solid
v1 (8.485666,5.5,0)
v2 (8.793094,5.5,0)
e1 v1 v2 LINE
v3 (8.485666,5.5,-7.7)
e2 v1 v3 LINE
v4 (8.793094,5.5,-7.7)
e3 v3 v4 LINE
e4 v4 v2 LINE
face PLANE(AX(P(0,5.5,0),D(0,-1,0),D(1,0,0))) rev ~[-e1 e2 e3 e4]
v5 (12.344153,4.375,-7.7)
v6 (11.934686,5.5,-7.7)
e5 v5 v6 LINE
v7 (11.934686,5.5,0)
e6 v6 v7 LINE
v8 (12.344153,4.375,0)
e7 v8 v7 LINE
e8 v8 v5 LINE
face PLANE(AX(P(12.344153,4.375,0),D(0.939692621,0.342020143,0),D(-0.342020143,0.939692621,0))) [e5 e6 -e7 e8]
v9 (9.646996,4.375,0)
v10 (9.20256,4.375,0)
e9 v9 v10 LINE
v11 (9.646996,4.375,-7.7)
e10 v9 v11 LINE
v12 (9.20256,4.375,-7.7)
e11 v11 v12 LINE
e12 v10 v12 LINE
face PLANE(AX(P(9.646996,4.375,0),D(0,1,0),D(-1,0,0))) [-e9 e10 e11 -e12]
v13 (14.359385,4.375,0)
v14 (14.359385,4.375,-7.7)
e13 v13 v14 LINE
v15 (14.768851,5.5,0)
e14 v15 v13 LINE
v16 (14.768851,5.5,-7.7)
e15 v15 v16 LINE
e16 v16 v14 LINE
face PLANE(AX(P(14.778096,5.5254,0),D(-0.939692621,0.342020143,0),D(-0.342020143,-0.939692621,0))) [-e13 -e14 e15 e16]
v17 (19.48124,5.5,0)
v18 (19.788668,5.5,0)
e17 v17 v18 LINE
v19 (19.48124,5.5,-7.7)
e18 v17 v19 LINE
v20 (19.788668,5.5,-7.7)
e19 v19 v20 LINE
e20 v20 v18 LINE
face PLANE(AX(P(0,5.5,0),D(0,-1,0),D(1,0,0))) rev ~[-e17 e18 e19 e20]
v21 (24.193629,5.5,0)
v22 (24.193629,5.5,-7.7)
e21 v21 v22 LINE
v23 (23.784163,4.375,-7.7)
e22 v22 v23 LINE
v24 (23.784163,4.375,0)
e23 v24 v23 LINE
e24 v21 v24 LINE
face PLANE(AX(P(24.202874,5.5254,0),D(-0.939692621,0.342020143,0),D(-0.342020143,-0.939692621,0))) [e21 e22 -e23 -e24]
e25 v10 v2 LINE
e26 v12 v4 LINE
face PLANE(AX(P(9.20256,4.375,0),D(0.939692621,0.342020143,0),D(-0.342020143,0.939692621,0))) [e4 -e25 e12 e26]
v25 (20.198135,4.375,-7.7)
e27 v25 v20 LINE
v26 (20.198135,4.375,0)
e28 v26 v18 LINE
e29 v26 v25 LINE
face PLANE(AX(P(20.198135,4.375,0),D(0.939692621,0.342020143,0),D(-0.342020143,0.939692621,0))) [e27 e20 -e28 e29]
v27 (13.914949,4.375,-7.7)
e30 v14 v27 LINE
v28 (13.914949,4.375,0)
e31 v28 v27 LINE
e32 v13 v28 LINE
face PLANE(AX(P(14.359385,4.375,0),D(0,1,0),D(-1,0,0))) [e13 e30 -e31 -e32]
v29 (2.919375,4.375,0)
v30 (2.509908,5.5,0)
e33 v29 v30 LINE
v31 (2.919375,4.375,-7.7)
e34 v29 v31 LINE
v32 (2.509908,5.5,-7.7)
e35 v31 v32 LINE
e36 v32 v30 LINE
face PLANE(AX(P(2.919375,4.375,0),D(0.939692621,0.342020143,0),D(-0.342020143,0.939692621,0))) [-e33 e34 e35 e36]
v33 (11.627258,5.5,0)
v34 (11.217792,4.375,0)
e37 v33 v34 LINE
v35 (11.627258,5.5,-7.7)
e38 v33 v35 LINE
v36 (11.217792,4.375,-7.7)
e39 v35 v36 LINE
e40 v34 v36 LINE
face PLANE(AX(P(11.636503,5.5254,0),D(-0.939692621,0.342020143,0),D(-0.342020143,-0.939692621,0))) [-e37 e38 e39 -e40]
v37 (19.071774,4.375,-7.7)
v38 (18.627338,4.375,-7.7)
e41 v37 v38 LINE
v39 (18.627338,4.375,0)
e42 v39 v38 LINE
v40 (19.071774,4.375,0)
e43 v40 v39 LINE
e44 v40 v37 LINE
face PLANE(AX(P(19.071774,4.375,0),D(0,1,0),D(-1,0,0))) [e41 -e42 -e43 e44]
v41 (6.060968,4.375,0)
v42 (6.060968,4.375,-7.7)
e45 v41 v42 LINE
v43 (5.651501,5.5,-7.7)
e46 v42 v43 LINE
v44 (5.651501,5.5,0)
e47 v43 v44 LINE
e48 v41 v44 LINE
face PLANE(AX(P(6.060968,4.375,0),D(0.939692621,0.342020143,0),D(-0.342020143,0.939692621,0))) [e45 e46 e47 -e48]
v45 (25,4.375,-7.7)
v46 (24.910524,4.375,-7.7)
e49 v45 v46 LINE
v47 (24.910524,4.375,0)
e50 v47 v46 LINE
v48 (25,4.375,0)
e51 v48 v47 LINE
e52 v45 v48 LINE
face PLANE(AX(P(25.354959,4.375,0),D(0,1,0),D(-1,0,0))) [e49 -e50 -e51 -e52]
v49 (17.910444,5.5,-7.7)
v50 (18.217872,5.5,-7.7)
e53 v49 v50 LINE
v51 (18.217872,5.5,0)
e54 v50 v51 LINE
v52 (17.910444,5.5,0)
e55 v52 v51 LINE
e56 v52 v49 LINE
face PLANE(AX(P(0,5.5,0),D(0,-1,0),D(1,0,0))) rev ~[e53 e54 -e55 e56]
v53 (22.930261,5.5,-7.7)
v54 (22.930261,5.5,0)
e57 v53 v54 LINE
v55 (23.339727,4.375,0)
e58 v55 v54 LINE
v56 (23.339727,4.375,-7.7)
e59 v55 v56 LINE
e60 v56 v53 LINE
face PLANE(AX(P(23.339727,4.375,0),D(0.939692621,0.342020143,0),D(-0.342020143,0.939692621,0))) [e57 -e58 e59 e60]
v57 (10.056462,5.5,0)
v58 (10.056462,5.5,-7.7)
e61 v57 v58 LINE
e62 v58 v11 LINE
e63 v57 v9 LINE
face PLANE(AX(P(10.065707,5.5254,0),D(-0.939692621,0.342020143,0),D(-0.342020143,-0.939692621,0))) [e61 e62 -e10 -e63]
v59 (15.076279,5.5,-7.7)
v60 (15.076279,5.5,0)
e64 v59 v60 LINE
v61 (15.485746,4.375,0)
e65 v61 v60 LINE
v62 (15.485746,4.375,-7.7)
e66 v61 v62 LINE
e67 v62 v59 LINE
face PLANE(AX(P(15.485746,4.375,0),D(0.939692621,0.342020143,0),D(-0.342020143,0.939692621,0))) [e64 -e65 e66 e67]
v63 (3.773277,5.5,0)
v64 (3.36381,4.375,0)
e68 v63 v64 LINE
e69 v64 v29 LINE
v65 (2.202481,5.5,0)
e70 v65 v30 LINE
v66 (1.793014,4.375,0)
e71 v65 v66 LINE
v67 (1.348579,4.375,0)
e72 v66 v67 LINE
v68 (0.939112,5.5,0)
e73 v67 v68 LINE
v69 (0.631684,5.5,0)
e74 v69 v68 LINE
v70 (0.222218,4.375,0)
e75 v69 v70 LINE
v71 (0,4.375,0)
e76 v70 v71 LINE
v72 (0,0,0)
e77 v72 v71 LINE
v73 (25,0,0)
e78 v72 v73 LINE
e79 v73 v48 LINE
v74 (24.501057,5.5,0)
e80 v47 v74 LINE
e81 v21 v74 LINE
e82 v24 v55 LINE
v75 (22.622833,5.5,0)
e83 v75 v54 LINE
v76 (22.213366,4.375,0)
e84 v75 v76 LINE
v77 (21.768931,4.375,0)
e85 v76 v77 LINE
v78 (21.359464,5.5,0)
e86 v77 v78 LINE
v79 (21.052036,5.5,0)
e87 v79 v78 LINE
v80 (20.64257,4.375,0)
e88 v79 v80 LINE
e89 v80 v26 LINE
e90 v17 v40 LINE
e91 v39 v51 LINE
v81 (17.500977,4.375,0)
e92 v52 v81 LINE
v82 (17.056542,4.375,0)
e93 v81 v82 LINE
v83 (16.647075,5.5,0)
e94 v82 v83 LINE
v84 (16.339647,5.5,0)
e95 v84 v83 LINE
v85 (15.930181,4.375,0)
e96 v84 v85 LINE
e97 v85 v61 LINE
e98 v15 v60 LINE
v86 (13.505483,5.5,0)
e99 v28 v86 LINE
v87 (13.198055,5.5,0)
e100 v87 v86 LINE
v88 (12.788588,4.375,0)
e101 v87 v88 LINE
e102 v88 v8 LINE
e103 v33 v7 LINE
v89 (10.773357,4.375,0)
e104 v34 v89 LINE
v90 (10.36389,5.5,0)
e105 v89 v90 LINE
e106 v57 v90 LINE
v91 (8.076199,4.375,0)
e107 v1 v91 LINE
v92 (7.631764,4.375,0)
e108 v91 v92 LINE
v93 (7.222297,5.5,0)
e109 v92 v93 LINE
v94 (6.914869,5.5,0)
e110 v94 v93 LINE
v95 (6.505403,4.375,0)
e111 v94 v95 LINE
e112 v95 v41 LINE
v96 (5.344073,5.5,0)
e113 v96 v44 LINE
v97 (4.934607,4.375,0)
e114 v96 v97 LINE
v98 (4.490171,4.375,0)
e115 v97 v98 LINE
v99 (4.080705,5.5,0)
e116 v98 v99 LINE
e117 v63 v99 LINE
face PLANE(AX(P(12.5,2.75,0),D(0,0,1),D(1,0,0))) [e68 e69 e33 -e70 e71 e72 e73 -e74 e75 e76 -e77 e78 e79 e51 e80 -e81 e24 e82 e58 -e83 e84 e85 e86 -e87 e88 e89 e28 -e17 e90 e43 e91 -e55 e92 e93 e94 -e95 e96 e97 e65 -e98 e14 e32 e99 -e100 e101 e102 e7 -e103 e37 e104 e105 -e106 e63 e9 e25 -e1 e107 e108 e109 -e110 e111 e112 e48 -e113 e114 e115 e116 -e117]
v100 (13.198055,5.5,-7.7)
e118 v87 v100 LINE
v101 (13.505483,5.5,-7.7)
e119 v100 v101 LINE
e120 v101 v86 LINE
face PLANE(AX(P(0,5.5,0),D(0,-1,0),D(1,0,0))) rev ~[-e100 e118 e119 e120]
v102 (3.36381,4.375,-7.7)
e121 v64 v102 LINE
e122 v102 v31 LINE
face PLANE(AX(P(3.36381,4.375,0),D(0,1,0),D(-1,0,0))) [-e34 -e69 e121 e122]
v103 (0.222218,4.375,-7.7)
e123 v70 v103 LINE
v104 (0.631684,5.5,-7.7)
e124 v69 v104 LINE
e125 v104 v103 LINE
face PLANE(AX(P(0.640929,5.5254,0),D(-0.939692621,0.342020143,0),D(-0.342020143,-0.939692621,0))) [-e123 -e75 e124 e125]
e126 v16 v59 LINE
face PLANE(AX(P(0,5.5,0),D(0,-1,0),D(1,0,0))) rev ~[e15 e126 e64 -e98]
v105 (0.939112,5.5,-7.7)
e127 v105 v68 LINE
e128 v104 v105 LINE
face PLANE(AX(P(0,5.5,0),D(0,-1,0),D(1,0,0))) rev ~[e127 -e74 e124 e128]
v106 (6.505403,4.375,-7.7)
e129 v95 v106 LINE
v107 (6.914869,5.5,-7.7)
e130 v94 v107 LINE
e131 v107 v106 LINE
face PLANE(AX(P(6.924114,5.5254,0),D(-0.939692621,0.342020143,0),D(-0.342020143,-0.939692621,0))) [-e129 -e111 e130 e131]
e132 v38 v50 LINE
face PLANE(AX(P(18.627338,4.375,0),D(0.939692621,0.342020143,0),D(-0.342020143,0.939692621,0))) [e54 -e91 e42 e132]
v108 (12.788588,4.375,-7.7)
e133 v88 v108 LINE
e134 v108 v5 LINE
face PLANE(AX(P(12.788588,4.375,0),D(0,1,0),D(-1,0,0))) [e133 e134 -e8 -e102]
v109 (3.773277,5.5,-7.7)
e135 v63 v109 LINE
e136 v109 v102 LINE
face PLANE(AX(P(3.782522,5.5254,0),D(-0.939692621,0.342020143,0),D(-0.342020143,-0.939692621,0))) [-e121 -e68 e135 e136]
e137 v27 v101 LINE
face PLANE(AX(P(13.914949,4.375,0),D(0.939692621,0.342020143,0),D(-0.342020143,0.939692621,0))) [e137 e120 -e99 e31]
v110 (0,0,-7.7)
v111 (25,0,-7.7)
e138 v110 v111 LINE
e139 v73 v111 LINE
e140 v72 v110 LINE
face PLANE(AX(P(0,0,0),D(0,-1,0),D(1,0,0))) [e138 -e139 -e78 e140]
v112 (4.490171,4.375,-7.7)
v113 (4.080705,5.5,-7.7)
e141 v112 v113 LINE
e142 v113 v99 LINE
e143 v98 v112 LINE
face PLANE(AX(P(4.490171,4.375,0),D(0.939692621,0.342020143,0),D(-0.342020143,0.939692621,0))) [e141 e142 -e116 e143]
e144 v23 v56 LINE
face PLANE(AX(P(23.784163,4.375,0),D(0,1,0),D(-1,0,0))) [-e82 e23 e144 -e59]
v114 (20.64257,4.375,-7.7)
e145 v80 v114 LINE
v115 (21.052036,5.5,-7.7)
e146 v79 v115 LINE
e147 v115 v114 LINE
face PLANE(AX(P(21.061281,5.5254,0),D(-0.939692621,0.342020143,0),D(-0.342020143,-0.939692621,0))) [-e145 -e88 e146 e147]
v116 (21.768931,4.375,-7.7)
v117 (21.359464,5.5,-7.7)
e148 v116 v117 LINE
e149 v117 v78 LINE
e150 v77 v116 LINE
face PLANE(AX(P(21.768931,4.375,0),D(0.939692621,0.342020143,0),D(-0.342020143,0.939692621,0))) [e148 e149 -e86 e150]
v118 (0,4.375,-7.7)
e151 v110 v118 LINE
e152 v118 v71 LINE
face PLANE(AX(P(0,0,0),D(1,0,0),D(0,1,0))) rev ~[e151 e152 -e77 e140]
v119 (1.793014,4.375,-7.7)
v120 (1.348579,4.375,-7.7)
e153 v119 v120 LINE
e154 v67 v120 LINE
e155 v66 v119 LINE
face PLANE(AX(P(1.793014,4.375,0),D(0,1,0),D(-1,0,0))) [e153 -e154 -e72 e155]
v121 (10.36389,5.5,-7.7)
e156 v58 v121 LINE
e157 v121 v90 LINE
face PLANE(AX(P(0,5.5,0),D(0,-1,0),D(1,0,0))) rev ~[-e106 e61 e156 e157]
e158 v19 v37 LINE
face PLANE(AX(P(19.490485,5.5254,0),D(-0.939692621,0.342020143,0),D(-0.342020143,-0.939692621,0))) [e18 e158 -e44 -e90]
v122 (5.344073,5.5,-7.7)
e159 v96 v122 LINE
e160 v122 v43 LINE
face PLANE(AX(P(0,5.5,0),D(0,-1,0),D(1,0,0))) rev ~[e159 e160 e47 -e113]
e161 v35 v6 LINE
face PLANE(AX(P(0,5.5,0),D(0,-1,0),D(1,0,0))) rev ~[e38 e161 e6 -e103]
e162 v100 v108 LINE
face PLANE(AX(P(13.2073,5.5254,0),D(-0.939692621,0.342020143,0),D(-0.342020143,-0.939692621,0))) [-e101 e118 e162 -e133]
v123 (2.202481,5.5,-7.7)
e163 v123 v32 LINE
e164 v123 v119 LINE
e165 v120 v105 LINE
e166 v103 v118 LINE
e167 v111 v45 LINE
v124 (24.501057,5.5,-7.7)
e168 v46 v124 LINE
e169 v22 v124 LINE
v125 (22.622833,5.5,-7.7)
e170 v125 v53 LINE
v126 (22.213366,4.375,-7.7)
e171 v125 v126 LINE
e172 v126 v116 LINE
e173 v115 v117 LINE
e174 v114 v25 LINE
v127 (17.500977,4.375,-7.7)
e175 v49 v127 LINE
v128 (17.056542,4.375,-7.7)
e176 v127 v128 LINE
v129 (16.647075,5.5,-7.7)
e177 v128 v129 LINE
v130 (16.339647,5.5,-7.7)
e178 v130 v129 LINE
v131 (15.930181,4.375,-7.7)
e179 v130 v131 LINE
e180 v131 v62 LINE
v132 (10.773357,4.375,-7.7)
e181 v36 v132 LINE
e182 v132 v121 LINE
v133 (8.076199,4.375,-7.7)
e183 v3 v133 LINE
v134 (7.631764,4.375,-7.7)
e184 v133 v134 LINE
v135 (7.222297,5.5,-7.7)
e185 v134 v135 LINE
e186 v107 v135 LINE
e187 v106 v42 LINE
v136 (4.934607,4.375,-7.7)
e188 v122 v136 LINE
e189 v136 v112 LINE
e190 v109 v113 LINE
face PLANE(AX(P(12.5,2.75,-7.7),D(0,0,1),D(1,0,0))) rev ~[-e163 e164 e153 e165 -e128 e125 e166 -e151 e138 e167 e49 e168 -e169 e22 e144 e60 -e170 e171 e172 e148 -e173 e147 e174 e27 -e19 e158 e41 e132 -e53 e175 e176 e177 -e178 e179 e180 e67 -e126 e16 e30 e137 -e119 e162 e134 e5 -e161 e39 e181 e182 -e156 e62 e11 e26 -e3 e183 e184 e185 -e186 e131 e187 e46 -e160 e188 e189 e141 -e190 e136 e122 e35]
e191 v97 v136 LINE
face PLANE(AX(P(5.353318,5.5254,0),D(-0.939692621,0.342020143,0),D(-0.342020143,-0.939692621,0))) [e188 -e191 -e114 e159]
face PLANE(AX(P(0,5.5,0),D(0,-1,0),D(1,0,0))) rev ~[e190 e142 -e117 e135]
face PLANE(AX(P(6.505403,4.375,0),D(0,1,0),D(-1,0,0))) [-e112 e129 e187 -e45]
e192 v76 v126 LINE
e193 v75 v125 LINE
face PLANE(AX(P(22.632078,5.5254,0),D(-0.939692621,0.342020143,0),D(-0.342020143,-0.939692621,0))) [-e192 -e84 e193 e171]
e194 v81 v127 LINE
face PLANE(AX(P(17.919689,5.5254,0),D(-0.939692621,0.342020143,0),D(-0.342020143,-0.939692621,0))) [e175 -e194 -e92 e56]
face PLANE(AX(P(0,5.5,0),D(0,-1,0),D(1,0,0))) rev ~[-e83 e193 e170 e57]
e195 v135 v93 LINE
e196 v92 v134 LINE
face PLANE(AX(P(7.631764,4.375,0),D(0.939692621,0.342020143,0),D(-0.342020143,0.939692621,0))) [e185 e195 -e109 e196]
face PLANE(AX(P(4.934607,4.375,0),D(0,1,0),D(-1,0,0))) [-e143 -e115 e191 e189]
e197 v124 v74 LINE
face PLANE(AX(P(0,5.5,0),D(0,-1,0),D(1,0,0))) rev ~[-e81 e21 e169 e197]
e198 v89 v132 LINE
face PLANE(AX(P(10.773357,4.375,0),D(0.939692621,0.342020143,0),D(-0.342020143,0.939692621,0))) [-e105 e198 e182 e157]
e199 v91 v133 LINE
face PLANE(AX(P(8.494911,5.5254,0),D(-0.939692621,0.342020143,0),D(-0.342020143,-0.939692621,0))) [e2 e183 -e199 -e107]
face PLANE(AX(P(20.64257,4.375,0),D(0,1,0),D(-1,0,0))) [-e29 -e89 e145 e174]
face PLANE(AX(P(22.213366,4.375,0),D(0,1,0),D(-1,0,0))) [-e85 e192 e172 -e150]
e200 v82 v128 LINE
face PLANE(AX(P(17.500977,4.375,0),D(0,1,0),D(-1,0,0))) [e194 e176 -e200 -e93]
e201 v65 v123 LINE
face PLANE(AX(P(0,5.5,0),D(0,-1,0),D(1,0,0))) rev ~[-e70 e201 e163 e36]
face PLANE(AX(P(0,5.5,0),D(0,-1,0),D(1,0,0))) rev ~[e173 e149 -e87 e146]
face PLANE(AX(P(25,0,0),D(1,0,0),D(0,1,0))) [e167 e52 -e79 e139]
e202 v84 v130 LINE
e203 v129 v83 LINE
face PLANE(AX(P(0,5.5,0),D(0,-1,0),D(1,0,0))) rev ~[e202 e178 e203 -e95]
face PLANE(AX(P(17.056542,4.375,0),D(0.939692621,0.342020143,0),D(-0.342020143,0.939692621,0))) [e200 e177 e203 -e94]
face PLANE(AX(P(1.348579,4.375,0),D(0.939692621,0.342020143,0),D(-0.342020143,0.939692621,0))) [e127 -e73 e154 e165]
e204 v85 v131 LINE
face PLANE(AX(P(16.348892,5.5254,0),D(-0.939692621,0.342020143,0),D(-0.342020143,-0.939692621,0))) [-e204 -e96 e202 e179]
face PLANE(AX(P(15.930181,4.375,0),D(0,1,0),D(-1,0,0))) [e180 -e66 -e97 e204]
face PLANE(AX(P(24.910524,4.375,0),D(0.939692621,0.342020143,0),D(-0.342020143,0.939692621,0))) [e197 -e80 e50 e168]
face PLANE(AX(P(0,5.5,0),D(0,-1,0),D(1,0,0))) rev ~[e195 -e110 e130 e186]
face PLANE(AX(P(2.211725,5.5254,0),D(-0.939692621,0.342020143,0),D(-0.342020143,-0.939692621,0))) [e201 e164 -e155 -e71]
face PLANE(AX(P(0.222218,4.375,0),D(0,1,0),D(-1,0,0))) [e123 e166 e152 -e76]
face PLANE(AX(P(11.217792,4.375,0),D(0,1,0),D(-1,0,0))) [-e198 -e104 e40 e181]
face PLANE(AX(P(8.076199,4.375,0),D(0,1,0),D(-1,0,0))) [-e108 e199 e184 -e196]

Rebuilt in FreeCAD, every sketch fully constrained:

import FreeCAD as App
import Part
import Sketcher
Q = App.Units.Quantity

doc = App.newDocument("Part")
params = doc.addObject("Spreadsheet::Sheet", "Params")
for row, (alias, value) in enumerate([
    ("sketch1_width", "25 mm"),
    ("sketch1_height", "5.5 mm"),
    ("pad1_length", "7.7 mm"),
    ("linearpattern_pitch", "1.570796 mm"),
], start=1):
    params.set(f"A{row}", alias)
    params.set(f"B{row}", "=" + value)
    params.setAlias(f"B{row}", alias)

body = doc.addObject("PartDesign::Body", "Body")

# Sketch on XY plane
sketch1 = doc.addObject("Sketcher::SketchObject", "Sketch")
body.addObject(sketch1)
sketch1.AttachmentSupport = (doc.XY_Plane, [""])
sketch1.MapMode = "FlatFace"
sketch1.addGeometry([
    Part.LineSegment(App.Vector(0, 6, 0), App.Vector(0, 0, 0)),
    Part.LineSegment(App.Vector(0, 0, 0), App.Vector(25, 0, 0)),
    Part.LineSegment(App.Vector(25, 0, 0), App.Vector(25, 6, 0)),
    Part.LineSegment(App.Vector(25, 6, 0), App.Vector(0, 6, 0)),
], False)
sketch1.addConstraint([
    Sketcher.Constraint("Coincident", 0, 2, 1, 1),
    Sketcher.Constraint("Coincident", 1, 2, 2, 1),
    Sketcher.Constraint("Coincident", 2, 2, 3, 1),
    Sketcher.Constraint("Coincident", 3, 2, 0, 1),
    Sketcher.Constraint("Vertical", 0),
    Sketcher.Constraint("Horizontal", 1),
    Sketcher.Constraint("Vertical", 2),
    Sketcher.Constraint("Horizontal", 3),
    Sketcher.Constraint("Coincident", 0, 2, -1, 1),
    Sketcher.Constraint("DistanceX", 1, 1, 1, 2, Q("25 mm")),
    Sketcher.Constraint("DistanceY", 0, 2, 0, 1, Q("5.5 mm")),
])
sketch1.setExpression("Constraints[9]", "Params.sketch1_width")
sketch1.setExpression("Constraints[10]", "Params.sketch1_height")
pad1 = doc.addObject("PartDesign::Pad", "Pad")
body.addObject(pad1)
pad1.Profile = sketch1
pad1.setExpression("Length", "Params.pad1_length")
pad1.Reversed = True

# Sketch on XY plane
sketch2 = doc.addObject("Sketcher::SketchObject", "Sketch001")
body.addObject(sketch2)
sketch2.AttachmentSupport = (doc.XY_Plane, [""])
sketch2.MapMode = "FlatFace"
sketch2.addGeometry([
    Part.LineSegment(App.Vector(-0.22, 4.38, 0), App.Vector(0.22, 4.38, 0)),
    Part.LineSegment(App.Vector(0.22, 4.38, 0), App.Vector(0.64, 5.53, 0)),
    Part.LineSegment(App.Vector(0.64, 5.53, 0), App.Vector(-0.64, 5.53, 0)),
    Part.LineSegment(App.Vector(-0.64, 5.53, 0), App.Vector(-0.22, 4.38, 0)),
], False)
sketch2.addConstraint([
    Sketcher.Constraint("Coincident", 0, 2, 1, 1),
    Sketcher.Constraint("Coincident", 1, 2, 2, 1),
    Sketcher.Constraint("Coincident", 2, 2, 3, 1),
    Sketcher.Constraint("Coincident", 3, 2, 0, 1),
    Sketcher.Constraint("Horizontal", 0),
    Sketcher.Constraint("Horizontal", 2),
    Sketcher.Constraint("Equal", 1, 3),
    Sketcher.Constraint("Angle", 1, Q("70 deg")),
    Sketcher.Constraint("DistanceY", -1, 1, 0, 2, Q("4.375 mm")),
    Sketcher.Constraint("DistanceX", 2, 2, 2, 1, Q("1.281858 mm")),
    Sketcher.Constraint("DistanceY", -1, 1, 1, 2, Q("5.5254 mm")),
    Sketcher.Constraint("DistanceX", -1, 1, 1, 2, Q("0.640929 mm")),
])
pocket1 = doc.addObject("PartDesign::Pocket", "Pocket")
body.addObject(pocket1)
pocket1.Profile = sketch2
pocket1.Type = "ThroughAll"
doc.recompute()

linearpattern = doc.addObject("PartDesign::LinearPattern", "LinearPattern")
body.addObject(linearpattern)
linearpattern.Originals = [pocket1]
linearpattern.Direction = (doc.X_Axis, [""])
linearpattern.Mode = "offset"
linearpattern.setExpression("Offset", "Params.linearpattern_pitch")
linearpattern.Occurrences = 17
body.Tip = linearpattern

doc.recompute()
